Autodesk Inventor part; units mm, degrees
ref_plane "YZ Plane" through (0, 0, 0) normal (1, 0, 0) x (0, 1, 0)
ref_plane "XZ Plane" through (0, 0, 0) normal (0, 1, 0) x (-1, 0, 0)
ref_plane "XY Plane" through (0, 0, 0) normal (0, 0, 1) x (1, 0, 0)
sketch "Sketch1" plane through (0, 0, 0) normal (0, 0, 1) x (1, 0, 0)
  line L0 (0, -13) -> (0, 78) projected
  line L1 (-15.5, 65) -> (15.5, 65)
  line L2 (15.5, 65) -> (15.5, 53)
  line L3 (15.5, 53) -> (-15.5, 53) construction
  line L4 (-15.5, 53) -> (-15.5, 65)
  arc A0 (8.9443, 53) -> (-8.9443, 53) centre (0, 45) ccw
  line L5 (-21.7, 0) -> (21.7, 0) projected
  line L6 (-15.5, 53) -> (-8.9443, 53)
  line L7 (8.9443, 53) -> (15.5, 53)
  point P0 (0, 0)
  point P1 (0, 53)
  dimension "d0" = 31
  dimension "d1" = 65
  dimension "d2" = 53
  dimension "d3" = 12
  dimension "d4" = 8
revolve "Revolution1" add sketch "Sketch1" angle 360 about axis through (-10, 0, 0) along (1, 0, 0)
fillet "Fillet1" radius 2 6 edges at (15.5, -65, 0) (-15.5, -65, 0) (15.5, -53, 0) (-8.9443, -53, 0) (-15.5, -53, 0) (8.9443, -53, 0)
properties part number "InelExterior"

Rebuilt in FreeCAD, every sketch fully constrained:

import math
import FreeCAD as App
import Part
import Sketcher
Q = App.Units.Quantity


def edges_at(feature, points):
    """Names of the edges that pass closest to the given points."""
    edges = feature.Shape.Edges
    near = lambda p: min(range(len(edges)), key=lambda i: edges[i].distToShape(Part.Vertex(*p))[0])
    return sorted({f"Edge{near(p) + 1}" for p in points})

doc = App.newDocument("Part")
body = doc.addObject("PartDesign::Body", "Body")

sketch1 = body.newObject("Sketcher::SketchObject", "Sketch")
sketch1.AttachmentSupport = (doc.getObject("XY_Plane"), [""])
sketch1.MapMode = "FlatFace"
sketch1.addGeometry(Part.ArcOfCircle(Part.Circle(App.Vector(0, 45, 0), App.Vector(0, 0, 1), 12), math.radians(42), math.radians(138)), False)
sketch1.addGeometry(Part.LineSegment(App.Vector(9, 53, 0), App.Vector(16, 53, 0)), False)
sketch1.addGeometry(Part.LineSegment(App.Vector(16, 53, 0), App.Vector(16, 65, 0)), False)
sketch1.addGeometry(Part.LineSegment(App.Vector(16, 65, 0), App.Vector(-16, 65, 0)), False)
sketch1.addGeometry(Part.LineSegment(App.Vector(-16, 65, 0), App.Vector(-16, 53, 0)), False)
sketch1.addGeometry(Part.LineSegment(App.Vector(-16, 53, 0), App.Vector(-9, 53, 0)), False)
sketch1.addConstraint(Sketcher.Constraint("Coincident", 0, 1, 1, 1))
sketch1.addConstraint(Sketcher.Constraint("Coincident", 1, 2, 2, 1))
sketch1.addConstraint(Sketcher.Constraint("Coincident", 2, 2, 3, 1))
sketch1.addConstraint(Sketcher.Constraint("Coincident", 3, 2, 4, 1))
sketch1.addConstraint(Sketcher.Constraint("Coincident", 4, 2, 5, 1))
sketch1.addConstraint(Sketcher.Constraint("Coincident", 5, 2, 0, 2))
sketch1.addConstraint(Sketcher.Constraint("Horizontal", 1))
sketch1.addConstraint(Sketcher.Constraint("Vertical", 2))
sketch1.addConstraint(Sketcher.Constraint("Horizontal", 3))
sketch1.addConstraint(Sketcher.Constraint("Vertical", 4))
sketch1.addConstraint(Sketcher.Constraint("Horizontal", 5))
sketch1.addConstraint(Sketcher.Constraint("Symmetric", 1, 2, 4, 2, -2))
sketch1.addConstraint(Sketcher.Constraint("PointOnObject", 0, 3, -2))
sketch1.addConstraint(Sketcher.Constraint("Radius", 0, Q("12 mm")))
sketch1.addConstraint(Sketcher.Constraint("DistanceX", 3, 2, 3, 1, Q("31 mm")))
sketch1.addConstraint(Sketcher.Constraint("DistanceY", 2, 1, 2, 2, Q("12 mm")))
sketch1.addConstraint(Sketcher.Constraint("DistanceY", -1, 1, 0, 1, Q("53 mm")))
sketch1.addConstraint(Sketcher.Constraint("DistanceY", 0, 3, 0, 1, Q("8 mm")))
revolution = body.newObject("PartDesign::Revolution", "Revolution")
revolution.Profile = sketch1
revolution.ReferenceAxis = (sketch1, ["H_Axis"])
revolution.Angle = 360
doc.recompute()

fillet = body.newObject("PartDesign::Fillet", "Fillet")
fillet.Base = (revolution, edges_at(revolution, [
    (15.5, -65, 0),
    (-15.5, -65, 0),
    (15.5, -53, 0),
    (-8.944, -53, 0),
    (-15.5, -53, 0),
    (8.944, -53, 0),
]))
fillet.Radius = 2

doc.recompute()
